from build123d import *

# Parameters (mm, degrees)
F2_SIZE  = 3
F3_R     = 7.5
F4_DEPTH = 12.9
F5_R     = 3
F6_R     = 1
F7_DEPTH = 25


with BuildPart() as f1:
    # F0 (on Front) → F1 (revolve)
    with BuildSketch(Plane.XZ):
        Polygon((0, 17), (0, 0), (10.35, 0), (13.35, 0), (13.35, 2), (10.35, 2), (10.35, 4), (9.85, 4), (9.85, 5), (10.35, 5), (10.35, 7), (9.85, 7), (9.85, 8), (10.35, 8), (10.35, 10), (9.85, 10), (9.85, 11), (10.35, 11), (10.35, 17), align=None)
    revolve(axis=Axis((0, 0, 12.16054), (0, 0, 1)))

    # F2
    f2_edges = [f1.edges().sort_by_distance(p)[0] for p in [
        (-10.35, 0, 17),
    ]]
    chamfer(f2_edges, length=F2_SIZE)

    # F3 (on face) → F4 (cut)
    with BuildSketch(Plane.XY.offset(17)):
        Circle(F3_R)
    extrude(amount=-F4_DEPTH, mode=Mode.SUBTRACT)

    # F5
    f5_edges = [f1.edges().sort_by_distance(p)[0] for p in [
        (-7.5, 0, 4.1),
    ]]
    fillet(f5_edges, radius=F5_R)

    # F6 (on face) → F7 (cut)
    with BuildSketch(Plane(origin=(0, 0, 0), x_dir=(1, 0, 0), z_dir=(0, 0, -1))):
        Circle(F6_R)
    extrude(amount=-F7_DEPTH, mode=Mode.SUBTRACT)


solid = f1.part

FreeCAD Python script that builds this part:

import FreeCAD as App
import Part
import Sketcher
from FreeCAD import Vector
Q = App.Units.Quantity


def edges_at(feature, points):
    """Names of the edges that pass closest to the given points."""
    edges = feature.Shape.Edges
    near = lambda p: min(range(len(edges)), key=lambda i: edges[i].distToShape(Part.Vertex(*p))[0])
    return sorted({f"Edge{near(p) + 1}" for p in points})


def add_polygon(sketch, points):
    """Adds a closed chain of lines whose ends are joined by coincident constraints."""
    first, n = sketch.GeometryCount, len(points)
    for a, b in zip(points, points[1:] + points[:1]):
        sketch.addGeometry(Part.LineSegment(App.Vector(*a, 0), App.Vector(*b, 0)), False)
    for i in range(n):
        sketch.addConstraint(Sketcher.Constraint("Coincident", first + i, 2, first + (i + 1) % n, 1))

doc = App.newDocument("Part")
body = doc.addObject("PartDesign::Body", "Body")

# Sketch on XZ plane
sketch1 = doc.addObject("Sketcher::SketchObject", "Sketch")
body.addObject(sketch1)
sketch1.AttachmentSupport = (doc.XZ_Plane, [""])
sketch1.MapMode = "FlatFace"
add_polygon(sketch1, [(0, 17), (0, 0), (13.3, 0), (13.3, 2), (10.3, 2), (10.3, 4), (9.8, 4), (9.8, 5), (10.3, 5), (10.3, 7), (9.8, 7), (9.8, 8), (10.3, 8), (10.3, 10), (9.8, 10), (9.8, 11), (10.3, 11), (10.3, 17)])  # lines 0-17
sketch1.addConstraint([
    Sketcher.Constraint("Vertical", 0),
    Sketcher.Constraint("Horizontal", 1),
    Sketcher.Constraint("Vertical", 2),
    Sketcher.Constraint("Horizontal", 3),
    Sketcher.Constraint("Vertical", 4),
    Sketcher.Constraint("Horizontal", 5),
    Sketcher.Constraint("Vertical", 6),
    Sketcher.Constraint("Horizontal", 7),
    Sketcher.Constraint("Vertical", 8),
    Sketcher.Constraint("Horizontal", 9),
    Sketcher.Constraint("Vertical", 10),
    Sketcher.Constraint("Horizontal", 11),
    Sketcher.Constraint("Vertical", 12),
    Sketcher.Constraint("Horizontal", 13),
    Sketcher.Constraint("Vertical", 14),
    Sketcher.Constraint("Horizontal", 15),
    Sketcher.Constraint("Vertical", 16),
    Sketcher.Constraint("Horizontal", 17),
    Sketcher.Constraint("Coincident", 0, 2, -1, 1),
    Sketcher.Constraint("Vertical", 4, 2, 7, 2),
    Sketcher.Constraint("Vertical", 6, 2, 9, 2),
    Sketcher.Constraint("Vertical", 8, 2, 11, 2),
    Sketcher.Constraint("Vertical", 10, 2, 13, 2),
    Sketcher.Constraint("Vertical", 12, 2, 15, 2),
    Sketcher.Constraint("Equal", 2, 4),
    Sketcher.Constraint("Equal", 4, 8),
    Sketcher.Constraint("Equal", 6, 10),
    Sketcher.Constraint("Equal", 8, 12),
    Sketcher.Constraint("Equal", 10, 14),
    Sketcher.Constraint("DistanceX", 3, 2, 3, 1, Q("3 mm")),
    Sketcher.Constraint("DistanceY", 0, 2, 0, 1, Q("17 mm")),
    Sketcher.Constraint("DistanceY", 2, 1, 2, 2, Q("2 mm")),
    Sketcher.Constraint("DistanceY", 6, 1, 6, 2, Q("1 mm")),
    Sketcher.Constraint("DistanceX", 5, 2, 5, 1, Q("0.5 mm")),
    Sketcher.Constraint("DistanceX", 1, 1, 1, 2, Q("13.35 mm")),
])
revolution = doc.addObject("PartDesign::Revolution", "Revolution")
body.addObject(revolution)
revolution.Profile = sketch1
revolution.ReferenceAxis = (sketch1, ["V_Axis"])
revolution.Angle = 360
doc.recompute()

chamfer = doc.addObject("PartDesign::Chamfer", "Chamfer")
body.addObject(chamfer)
chamfer.Base = (revolution, edges_at(revolution, [(-10.35, 0, 17)]))
chamfer.Size = 3

# Sketch on XY plane
sketch2 = doc.addObject("Sketcher::SketchObject", "Sketch001")
body.addObject(sketch2)
sketch2.AttachmentSupport = (doc.XY_Plane, [""])
sketch2.MapMode = "FlatFace"
sketch2.AttachmentOffset = App.Placement(Vector(0, 0, 17), App.Rotation())
sketch2.addGeometry(Part.Circle(Vector(0, 0, 0), Vector(0, 0, 1), 8), False)
sketch2.addConstraint([
    Sketcher.Constraint("Coincident", 0, 3, -1, 1),
    Sketcher.Constraint("Diameter", 0, Q("15 mm")),
])
pocket1 = doc.addObject("PartDesign::Pocket", "Pocket")
body.addObject(pocket1)
pocket1.Profile = sketch2
pocket1.Length = 12.9
doc.recompute()

fillet = doc.addObject("PartDesign::Fillet", "Fillet")
body.addObject(fillet)
fillet.Base = (pocket1, edges_at(pocket1, [(-7.5, 0, 4.1)]))
fillet.Radius = 3

# Sketch on XY plane
sketch3 = doc.addObject("Sketcher::SketchObject", "Sketch002")
body.addObject(sketch3)
sketch3.AttachmentSupport = (doc.XY_Plane, [""])
sketch3.MapMode = "FlatFace"
sketch3.addGeometry(Part.Circle(Vector(0, 0, 0), Vector(0, 0, 1), 1), False)
sketch3.addConstraint([
    Sketcher.Constraint("Coincident", 0, 3, -1, 1),
    Sketcher.Constraint("Diameter", 0, Q("2 mm")),
])
pocket2 = doc.addObject("PartDesign::Pocket", "Pocket001")
body.addObject(pocket2)
pocket2.Profile = sketch3
pocket2.Length = 25
pocket2.Reversed = True

doc.recompute()
